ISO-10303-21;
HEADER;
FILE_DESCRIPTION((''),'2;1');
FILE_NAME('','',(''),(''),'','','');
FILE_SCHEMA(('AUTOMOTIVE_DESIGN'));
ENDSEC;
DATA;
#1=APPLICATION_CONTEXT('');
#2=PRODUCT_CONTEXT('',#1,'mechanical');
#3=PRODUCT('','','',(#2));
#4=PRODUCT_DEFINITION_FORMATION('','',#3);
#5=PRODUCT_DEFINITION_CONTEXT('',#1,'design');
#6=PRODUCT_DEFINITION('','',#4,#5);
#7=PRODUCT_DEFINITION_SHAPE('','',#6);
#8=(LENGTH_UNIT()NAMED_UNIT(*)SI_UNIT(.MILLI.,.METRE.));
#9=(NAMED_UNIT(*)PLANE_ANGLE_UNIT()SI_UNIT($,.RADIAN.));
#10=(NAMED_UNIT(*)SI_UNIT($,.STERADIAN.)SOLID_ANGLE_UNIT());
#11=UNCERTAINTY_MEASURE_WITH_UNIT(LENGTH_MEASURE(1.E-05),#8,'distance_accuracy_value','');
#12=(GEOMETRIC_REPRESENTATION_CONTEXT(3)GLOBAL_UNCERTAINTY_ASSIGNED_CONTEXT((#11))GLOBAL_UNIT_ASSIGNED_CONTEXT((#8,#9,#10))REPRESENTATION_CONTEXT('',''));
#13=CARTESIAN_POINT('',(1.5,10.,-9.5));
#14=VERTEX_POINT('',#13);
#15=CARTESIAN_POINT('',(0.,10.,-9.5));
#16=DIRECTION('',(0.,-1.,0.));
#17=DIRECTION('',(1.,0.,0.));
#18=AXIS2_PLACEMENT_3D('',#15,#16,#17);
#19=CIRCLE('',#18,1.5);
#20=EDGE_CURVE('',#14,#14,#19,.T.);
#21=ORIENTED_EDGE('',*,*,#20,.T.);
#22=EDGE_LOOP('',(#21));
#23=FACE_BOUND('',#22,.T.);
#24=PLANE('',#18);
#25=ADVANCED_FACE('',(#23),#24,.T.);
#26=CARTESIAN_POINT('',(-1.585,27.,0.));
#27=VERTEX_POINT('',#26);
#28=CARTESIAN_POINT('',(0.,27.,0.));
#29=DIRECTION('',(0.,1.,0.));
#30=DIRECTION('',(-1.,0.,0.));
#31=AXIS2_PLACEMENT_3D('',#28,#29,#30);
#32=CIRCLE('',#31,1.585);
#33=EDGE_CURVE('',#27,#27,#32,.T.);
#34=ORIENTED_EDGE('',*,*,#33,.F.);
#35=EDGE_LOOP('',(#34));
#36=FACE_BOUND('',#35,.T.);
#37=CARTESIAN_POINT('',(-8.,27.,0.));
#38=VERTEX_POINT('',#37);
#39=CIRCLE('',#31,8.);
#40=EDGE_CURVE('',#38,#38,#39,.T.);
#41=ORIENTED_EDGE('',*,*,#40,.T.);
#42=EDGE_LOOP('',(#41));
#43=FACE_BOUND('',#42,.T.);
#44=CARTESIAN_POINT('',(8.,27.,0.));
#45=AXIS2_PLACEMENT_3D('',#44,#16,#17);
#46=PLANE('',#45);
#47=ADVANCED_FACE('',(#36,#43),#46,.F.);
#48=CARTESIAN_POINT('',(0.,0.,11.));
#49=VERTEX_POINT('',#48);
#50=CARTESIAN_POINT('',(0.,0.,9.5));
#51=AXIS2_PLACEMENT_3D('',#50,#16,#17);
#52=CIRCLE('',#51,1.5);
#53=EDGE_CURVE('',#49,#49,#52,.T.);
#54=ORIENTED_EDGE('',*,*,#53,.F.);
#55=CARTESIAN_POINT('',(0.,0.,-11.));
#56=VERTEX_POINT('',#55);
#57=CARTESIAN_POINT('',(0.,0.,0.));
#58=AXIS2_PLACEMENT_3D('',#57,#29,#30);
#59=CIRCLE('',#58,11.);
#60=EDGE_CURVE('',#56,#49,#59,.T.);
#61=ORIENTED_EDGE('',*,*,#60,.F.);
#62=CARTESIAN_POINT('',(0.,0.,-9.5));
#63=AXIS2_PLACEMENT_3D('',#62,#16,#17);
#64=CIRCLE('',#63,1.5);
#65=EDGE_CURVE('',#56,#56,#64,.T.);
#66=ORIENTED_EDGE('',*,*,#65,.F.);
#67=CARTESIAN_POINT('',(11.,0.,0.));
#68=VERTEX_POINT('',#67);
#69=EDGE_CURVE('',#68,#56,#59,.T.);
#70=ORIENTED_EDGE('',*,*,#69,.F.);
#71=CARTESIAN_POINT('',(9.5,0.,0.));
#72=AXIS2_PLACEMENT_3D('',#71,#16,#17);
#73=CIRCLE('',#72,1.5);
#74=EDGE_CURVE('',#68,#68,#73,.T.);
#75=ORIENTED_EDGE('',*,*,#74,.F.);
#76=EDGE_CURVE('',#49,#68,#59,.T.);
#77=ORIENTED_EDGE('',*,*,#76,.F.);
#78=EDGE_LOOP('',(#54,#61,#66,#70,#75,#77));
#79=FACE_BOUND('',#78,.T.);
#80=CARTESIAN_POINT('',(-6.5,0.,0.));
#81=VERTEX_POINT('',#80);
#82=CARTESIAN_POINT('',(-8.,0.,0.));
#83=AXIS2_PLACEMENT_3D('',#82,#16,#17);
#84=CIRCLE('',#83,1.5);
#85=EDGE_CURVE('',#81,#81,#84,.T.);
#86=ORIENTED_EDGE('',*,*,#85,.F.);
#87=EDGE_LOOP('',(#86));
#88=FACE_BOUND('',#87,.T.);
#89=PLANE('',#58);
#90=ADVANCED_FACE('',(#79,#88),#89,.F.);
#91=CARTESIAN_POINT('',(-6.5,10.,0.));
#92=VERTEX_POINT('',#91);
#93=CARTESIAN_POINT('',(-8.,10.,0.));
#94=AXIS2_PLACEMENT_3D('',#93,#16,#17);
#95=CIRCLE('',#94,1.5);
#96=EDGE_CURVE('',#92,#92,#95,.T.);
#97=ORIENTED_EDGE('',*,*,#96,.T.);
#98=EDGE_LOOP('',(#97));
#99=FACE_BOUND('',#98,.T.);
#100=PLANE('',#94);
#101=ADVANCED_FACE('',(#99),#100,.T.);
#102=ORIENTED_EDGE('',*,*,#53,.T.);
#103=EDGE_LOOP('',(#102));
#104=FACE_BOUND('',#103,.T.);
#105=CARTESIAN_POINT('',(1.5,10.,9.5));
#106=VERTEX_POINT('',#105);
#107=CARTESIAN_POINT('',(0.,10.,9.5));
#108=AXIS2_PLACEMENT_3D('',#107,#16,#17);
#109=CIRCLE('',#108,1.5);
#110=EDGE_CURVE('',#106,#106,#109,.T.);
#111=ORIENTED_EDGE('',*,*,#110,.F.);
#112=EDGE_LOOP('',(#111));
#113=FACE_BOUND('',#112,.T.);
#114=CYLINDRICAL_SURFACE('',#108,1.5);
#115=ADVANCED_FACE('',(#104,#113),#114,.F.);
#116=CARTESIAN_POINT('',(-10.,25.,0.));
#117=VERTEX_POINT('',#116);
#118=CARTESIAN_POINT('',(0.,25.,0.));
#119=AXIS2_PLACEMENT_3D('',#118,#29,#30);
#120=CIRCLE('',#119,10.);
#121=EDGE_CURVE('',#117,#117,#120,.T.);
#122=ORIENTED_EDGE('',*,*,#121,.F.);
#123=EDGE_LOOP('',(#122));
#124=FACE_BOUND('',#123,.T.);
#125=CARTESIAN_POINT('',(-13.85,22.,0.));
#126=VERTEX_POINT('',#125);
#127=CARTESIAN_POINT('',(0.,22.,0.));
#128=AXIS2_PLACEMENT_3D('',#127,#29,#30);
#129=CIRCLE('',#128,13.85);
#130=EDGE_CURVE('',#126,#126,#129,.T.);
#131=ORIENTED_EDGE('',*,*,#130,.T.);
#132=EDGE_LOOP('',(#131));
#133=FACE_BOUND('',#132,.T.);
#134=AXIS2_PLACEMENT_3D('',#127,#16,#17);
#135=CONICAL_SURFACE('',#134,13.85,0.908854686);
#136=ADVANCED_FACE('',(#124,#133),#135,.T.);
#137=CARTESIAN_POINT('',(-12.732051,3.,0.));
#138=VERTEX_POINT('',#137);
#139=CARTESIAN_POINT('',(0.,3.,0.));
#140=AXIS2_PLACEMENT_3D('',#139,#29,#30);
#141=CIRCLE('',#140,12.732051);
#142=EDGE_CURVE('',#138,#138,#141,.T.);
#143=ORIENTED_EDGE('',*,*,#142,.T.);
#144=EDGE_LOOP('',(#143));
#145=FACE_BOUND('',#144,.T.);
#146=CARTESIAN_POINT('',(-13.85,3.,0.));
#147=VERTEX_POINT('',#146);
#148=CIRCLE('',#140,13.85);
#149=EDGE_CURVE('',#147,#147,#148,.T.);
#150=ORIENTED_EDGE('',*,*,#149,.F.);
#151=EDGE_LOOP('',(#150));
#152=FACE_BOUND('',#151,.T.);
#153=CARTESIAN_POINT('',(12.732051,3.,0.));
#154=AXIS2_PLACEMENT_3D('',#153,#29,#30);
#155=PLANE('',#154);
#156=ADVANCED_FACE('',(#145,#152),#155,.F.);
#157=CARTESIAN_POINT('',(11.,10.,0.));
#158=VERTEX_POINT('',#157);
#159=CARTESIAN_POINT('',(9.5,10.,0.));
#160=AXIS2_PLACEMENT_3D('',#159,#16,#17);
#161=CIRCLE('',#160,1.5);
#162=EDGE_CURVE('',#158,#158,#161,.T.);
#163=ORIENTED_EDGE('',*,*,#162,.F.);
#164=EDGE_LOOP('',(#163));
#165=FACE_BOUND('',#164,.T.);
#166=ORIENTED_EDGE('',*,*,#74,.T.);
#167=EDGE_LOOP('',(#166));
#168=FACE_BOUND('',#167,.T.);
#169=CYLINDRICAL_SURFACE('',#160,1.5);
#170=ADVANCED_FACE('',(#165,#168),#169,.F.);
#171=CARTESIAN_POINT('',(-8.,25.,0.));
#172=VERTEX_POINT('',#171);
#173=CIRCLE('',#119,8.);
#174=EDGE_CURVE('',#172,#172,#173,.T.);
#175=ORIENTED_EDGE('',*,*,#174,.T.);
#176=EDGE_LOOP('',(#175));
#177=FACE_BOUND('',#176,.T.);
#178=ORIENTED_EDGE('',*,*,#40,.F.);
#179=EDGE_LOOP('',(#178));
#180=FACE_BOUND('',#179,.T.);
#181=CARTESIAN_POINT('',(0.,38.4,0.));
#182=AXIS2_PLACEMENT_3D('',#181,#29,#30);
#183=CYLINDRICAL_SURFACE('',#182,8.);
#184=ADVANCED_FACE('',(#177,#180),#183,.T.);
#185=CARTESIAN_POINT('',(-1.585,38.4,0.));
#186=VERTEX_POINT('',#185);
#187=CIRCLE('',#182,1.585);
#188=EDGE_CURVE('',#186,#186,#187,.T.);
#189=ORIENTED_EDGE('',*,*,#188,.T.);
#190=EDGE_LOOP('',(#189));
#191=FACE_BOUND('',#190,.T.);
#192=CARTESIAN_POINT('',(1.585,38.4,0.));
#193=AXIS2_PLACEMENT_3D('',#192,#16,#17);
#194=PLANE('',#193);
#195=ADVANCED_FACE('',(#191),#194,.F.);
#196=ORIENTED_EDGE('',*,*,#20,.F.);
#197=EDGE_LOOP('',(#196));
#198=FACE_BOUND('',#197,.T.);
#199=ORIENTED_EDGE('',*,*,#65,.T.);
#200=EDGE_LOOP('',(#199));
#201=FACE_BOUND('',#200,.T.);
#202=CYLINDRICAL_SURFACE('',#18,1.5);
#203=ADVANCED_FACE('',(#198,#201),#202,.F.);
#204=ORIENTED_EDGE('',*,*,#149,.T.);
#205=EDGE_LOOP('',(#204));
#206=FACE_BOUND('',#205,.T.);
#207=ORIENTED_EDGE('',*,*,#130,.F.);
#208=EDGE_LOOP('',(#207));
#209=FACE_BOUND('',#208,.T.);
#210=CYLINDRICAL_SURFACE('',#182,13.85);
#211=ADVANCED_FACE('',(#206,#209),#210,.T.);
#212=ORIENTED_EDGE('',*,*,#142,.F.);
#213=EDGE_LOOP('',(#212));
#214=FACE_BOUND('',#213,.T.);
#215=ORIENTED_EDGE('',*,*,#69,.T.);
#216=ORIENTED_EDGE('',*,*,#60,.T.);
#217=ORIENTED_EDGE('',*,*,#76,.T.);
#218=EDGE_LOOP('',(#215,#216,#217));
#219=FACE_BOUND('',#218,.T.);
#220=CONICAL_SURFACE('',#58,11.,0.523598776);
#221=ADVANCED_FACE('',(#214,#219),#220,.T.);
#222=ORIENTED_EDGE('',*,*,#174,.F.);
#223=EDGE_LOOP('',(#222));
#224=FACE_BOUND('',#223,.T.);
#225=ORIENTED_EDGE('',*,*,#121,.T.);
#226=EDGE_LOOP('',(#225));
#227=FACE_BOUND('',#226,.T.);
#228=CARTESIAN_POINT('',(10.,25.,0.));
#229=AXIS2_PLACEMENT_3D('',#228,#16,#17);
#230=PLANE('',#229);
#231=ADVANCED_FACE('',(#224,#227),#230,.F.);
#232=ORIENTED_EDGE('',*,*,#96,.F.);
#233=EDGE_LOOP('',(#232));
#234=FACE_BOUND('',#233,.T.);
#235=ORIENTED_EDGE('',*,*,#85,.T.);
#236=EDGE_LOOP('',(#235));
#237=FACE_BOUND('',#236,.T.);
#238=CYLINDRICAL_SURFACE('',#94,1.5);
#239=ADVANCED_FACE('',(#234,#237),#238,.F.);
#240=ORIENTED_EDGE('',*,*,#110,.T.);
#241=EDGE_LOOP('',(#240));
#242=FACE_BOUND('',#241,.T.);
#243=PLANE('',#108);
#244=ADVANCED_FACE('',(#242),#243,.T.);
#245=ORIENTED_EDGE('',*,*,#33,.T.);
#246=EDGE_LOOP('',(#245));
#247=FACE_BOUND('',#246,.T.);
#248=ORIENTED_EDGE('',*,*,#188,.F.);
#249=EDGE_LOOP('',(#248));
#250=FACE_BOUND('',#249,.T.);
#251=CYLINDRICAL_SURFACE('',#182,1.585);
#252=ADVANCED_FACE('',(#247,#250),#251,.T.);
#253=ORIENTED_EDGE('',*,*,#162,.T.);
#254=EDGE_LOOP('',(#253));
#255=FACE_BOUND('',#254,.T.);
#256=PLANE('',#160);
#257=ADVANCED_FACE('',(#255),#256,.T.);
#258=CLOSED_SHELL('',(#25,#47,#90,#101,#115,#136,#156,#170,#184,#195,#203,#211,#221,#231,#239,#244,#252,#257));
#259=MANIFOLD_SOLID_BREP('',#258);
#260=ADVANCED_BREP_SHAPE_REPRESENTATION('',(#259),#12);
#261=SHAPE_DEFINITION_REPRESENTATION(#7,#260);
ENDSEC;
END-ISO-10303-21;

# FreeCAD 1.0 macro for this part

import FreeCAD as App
import Part
import Sketcher

V = App.Vector
Q = App.Units.Quantity

doc = App.newDocument("Part")
body = doc.addObject("PartDesign::Body", "Body")

# Sketch on XY plane
sketch1 = body.newObject("Sketcher::SketchObject", "Sketch")
sketch1.AttachmentSupport = (doc.getObject("XY_Plane"), [""])
sketch1.MapMode = "FlatFace"
sketch1.addGeometry(Part.LineSegment(V(0, 0, 0), V(11, 0, 0)), False)
sketch1.addGeometry(Part.LineSegment(V(11, 0, 0), V(12.7, 3, 0)), False)
sketch1.addGeometry(Part.LineSegment(V(12.7, 3, 0), V(13.8, 3, 0)), False)
sketch1.addGeometry(Part.LineSegment(V(13.8, 3, 0), V(13.8, 22, 0)), False)
sketch1.addGeometry(Part.LineSegment(V(13.8, 22, 0), V(10, 25, 0)), False)
sketch1.addGeometry(Part.LineSegment(V(10, 25, 0), V(8, 25, 0)), False)
sketch1.addGeometry(Part.LineSegment(V(8, 25, 0), V(8, 27, 0)), False)
sketch1.addGeometry(Part.LineSegment(V(8, 27, 0), V(1.6, 27, 0)), False)
sketch1.addGeometry(Part.LineSegment(V(1.6, 27, 0), V(1.6, 38.4, 0)), False)
sketch1.addGeometry(Part.LineSegment(V(1.6, 38.4, 0), V(0, 38.4, 0)), False)
sketch1.addGeometry(Part.LineSegment(V(0, 38.4, 0), V(0, 0, 0)), False)
sketch1.addConstraint(Sketcher.Constraint("Coincident", 0, 2, 1, 1))
sketch1.addConstraint(Sketcher.Constraint("Coincident", 1, 2, 2, 1))
sketch1.addConstraint(Sketcher.Constraint("Coincident", 2, 2, 3, 1))
sketch1.addConstraint(Sketcher.Constraint("Coincident", 3, 2, 4, 1))
sketch1.addConstraint(Sketcher.Constraint("Coincident", 4, 2, 5, 1))
sketch1.addConstraint(Sketcher.Constraint("Coincident", 5, 2, 6, 1))
sketch1.addConstraint(Sketcher.Constraint("Coincident", 6, 2, 7, 1))
sketch1.addConstraint(Sketcher.Constraint("Coincident", 7, 2, 8, 1))
sketch1.addConstraint(Sketcher.Constraint("Coincident", 8, 2, 9, 1))
sketch1.addConstraint(Sketcher.Constraint("Coincident", 9, 2, 10, 1))
sketch1.addConstraint(Sketcher.Constraint("Coincident", 10, 2, 0, 1))
sketch1.addConstraint(Sketcher.Constraint("Horizontal", 0))
sketch1.addConstraint(Sketcher.Constraint("Horizontal", 2))
sketch1.addConstraint(Sketcher.Constraint("Vertical", 3))
sketch1.addConstraint(Sketcher.Constraint("Horizontal", 5))
sketch1.addConstraint(Sketcher.Constraint("Vertical", 6))
sketch1.addConstraint(Sketcher.Constraint("Horizontal", 7))
sketch1.addConstraint(Sketcher.Constraint("Vertical", 8))
sketch1.addConstraint(Sketcher.Constraint("Horizontal", 9))
sketch1.addConstraint(Sketcher.Constraint("Vertical", 10))
sketch1.addConstraint(Sketcher.Constraint("Coincident", 10, 2, -1, 1))
sketch1.addConstraint(Sketcher.Constraint("Equal", 5, 6))
sketch1.addConstraint(Sketcher.Constraint("DistanceX", 0, 1, 0, 2, Q("11 mm")))
sketch1.addConstraint(Sketcher.Constraint("DistanceX", 5, 2, 5, 1, Q("2 mm")))
sketch1.addConstraint(Sketcher.Constraint("DistanceY", 3, 1, 3, 2, Q("19 mm")))
sketch1.addConstraint(Sketcher.Constraint("Angle", 1, Q("60 deg")))
sketch1.addConstraint(Sketcher.Constraint("DistanceY", 8, 1, 8, 2, Q("11.4 mm")))
sketch1.addConstraint(Sketcher.Constraint("DistanceY", 10, 2, 10, 1, Q("38.4 mm")))
sketch1.addConstraint(Sketcher.Constraint("DistanceY", -1, 1, 1, 2, Q("3 mm")))
sketch1.addConstraint(Sketcher.Constraint("DistanceX", -1, 1, 4, 2, Q("10 mm")))
sketch1.addConstraint(Sketcher.Constraint("DistanceX", 7, 2, 7, 1, Q("6.415 mm")))
sketch1.addConstraint(Sketcher.Constraint("DistanceX", -1, 1, 2, 2, Q("13.85 mm")))
revolution = body.newObject("PartDesign::Revolution", "Revolution")
revolution.Profile = sketch1
revolution.ReferenceAxis = (sketch1, ["V_Axis"])
revolution.Angle = 360

# Sketch on XZ plane
sketch2 = body.newObject("Sketcher::SketchObject", "Sketch001")
sketch2.AttachmentSupport = (doc.getObject("XZ_Plane"), [""])
sketch2.MapMode = "FlatFace"
sketch2.addGeometry(Part.Circle(V(9.5, 0, 0), V(0, 0, 1), 1.5), False)
sketch2.addGeometry(Part.Circle(V(-8, 0, 0), V(0, 0, 1), 1.5), False)
sketch2.addGeometry(Part.Circle(V(0, 9.5, 0), V(0, 0, 1), 1.5), False)
sketch2.addGeometry(Part.Circle(V(0, -9.5, 0), V(0, 0, 1), 1.5), False)
sketch2.addConstraint(Sketcher.Constraint("Equal", 0, 1))
sketch2.addConstraint(Sketcher.Constraint("Equal", 1, 2))
sketch2.addConstraint(Sketcher.Constraint("Equal", 2, 3))
sketch2.addConstraint(Sketcher.Constraint("Symmetric", 2, 3, 3, 3, -1, 1))
sketch2.addConstraint(Sketcher.Constraint("PointOnObject", 0, 3, -1))
sketch2.addConstraint(Sketcher.Constraint("PointOnObject", 1, 3, -1))
sketch2.addConstraint(Sketcher.Constraint("PointOnObject", 2, 3, -2))
sketch2.addConstraint(Sketcher.Constraint("Diameter", 0, Q("3 mm")))
sketch2.addConstraint(Sketcher.Constraint("DistanceX", 1, 3, -1, 1, Q("8 mm")))
sketch2.addConstraint(Sketcher.Constraint("DistanceY", 3, 3, 2, 3, Q("19 mm")))
sketch2.addConstraint(Sketcher.Constraint("DistanceX", -1, 1, 0, 3, Q("9.5 mm")))
pocket1 = body.newObject("PartDesign::Pocket", "Pocket")
pocket1.Profile = sketch2
pocket1.Length = 10

doc.recompute()
